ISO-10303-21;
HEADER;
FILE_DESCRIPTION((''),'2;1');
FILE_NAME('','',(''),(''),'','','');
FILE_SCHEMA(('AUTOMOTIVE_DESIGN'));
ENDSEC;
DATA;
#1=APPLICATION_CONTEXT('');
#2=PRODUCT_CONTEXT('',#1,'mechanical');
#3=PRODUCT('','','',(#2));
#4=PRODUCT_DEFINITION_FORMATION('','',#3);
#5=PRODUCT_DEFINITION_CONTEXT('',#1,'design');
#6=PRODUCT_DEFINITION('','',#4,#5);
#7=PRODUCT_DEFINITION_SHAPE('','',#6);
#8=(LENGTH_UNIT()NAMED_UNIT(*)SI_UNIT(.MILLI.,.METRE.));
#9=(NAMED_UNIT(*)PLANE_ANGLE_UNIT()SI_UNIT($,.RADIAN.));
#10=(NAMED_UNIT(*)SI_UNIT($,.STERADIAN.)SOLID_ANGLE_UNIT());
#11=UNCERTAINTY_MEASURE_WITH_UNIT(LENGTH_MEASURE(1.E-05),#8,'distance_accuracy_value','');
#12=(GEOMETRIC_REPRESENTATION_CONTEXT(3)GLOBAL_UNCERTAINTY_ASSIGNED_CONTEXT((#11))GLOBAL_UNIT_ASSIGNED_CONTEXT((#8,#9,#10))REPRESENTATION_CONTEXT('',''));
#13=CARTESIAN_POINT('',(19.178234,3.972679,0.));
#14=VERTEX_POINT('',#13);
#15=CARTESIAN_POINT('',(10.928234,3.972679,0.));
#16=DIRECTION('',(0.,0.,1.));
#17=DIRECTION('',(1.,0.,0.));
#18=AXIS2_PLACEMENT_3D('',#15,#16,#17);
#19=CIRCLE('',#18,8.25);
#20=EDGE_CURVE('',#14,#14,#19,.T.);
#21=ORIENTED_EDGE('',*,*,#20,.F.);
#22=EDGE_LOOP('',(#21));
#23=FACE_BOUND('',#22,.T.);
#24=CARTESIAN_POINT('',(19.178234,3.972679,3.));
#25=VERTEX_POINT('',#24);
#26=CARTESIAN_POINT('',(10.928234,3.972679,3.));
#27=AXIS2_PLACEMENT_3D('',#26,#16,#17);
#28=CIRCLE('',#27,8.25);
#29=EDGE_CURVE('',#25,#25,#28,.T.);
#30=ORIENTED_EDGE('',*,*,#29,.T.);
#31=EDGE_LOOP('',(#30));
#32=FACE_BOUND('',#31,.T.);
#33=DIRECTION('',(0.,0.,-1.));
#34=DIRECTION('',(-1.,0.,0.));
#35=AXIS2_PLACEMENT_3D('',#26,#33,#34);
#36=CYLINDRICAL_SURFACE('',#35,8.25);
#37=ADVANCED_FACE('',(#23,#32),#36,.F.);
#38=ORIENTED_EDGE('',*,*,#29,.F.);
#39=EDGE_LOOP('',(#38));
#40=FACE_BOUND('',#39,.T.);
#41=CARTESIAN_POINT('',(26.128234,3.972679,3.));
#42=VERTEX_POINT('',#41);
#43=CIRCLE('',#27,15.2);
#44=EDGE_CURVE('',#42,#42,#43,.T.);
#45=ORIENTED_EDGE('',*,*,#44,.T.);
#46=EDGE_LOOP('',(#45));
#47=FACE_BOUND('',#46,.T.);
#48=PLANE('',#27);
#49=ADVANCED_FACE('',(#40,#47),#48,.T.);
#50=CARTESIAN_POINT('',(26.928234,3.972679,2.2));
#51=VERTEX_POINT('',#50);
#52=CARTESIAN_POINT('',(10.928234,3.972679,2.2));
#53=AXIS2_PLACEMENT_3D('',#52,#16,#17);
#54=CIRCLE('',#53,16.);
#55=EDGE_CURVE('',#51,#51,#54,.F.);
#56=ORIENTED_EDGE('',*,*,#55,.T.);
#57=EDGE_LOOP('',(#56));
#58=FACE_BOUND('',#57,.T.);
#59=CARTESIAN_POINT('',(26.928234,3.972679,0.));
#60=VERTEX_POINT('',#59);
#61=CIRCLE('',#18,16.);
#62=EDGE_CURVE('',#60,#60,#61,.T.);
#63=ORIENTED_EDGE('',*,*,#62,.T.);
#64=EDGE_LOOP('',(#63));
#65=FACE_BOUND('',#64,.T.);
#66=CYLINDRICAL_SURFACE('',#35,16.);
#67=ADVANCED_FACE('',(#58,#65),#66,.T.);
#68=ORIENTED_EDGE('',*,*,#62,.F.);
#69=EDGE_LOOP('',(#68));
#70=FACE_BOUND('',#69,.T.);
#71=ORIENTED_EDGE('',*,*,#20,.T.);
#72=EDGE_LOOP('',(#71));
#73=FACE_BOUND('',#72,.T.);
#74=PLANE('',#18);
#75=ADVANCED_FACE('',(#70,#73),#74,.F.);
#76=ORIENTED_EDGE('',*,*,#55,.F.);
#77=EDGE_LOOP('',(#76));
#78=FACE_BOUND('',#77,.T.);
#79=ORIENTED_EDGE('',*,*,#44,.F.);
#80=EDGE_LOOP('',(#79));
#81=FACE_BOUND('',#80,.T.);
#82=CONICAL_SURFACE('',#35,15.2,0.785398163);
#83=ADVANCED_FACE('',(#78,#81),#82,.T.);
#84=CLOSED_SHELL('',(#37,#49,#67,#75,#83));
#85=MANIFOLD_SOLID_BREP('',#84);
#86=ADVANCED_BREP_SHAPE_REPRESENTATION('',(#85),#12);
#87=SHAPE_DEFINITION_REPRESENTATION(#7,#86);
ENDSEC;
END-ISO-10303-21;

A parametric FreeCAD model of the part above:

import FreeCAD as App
import Part
import Sketcher
from FreeCAD import Vector


def edges_at(feature, points):
    """Names of the edges that pass closest to the given points."""
    edges = feature.Shape.Edges
    near = lambda p: min(range(len(edges)), key=lambda i: edges[i].distToShape(Part.Vertex(*p))[0])
    return sorted({f"Edge{near(p) + 1}" for p in points})

doc = App.newDocument("Part")
body = doc.addObject("PartDesign::Body", "Body")

# Sketch on XY plane
sketch1 = body.newObject("Sketcher::SketchObject", "Sketch")
sketch1.AttachmentSupport = (doc.getObject("XY_Plane"), [""])
sketch1.MapMode = "FlatFace"
sketch1.addGeometry(Part.Circle(Vector(11, 4, 0), Vector(0, 0, 1), 16), False)
sketch1.addGeometry(Part.Circle(Vector(11, 4, 0), Vector(0, 0, 1), 8), False)
sketch1.addConstraint(Sketcher.Constraint("Coincident", 1, 3, 0, 3))
sketch1.addConstraint(Sketcher.Constraint("Diameter", 0, 32.0))
sketch1.addConstraint(Sketcher.Constraint("Diameter", 1, 16.5))
sketch1.addConstraint(Sketcher.Constraint("DistanceY", -1, 1, 0, 3, 3.972679))
sketch1.addConstraint(Sketcher.Constraint("DistanceX", -1, 1, 0, 3, 10.928234))
pad1 = body.newObject("PartDesign::Pad", "Pad")
pad1.Profile = sketch1
pad1.Length = 3
doc.recompute()

chamfer = body.newObject("PartDesign::Chamfer", "Chamfer")
chamfer.Base = (pad1, edges_at(pad1, [(-5.072, 3.973, 3)]))
chamfer.Size = 0.8

doc.recompute()
